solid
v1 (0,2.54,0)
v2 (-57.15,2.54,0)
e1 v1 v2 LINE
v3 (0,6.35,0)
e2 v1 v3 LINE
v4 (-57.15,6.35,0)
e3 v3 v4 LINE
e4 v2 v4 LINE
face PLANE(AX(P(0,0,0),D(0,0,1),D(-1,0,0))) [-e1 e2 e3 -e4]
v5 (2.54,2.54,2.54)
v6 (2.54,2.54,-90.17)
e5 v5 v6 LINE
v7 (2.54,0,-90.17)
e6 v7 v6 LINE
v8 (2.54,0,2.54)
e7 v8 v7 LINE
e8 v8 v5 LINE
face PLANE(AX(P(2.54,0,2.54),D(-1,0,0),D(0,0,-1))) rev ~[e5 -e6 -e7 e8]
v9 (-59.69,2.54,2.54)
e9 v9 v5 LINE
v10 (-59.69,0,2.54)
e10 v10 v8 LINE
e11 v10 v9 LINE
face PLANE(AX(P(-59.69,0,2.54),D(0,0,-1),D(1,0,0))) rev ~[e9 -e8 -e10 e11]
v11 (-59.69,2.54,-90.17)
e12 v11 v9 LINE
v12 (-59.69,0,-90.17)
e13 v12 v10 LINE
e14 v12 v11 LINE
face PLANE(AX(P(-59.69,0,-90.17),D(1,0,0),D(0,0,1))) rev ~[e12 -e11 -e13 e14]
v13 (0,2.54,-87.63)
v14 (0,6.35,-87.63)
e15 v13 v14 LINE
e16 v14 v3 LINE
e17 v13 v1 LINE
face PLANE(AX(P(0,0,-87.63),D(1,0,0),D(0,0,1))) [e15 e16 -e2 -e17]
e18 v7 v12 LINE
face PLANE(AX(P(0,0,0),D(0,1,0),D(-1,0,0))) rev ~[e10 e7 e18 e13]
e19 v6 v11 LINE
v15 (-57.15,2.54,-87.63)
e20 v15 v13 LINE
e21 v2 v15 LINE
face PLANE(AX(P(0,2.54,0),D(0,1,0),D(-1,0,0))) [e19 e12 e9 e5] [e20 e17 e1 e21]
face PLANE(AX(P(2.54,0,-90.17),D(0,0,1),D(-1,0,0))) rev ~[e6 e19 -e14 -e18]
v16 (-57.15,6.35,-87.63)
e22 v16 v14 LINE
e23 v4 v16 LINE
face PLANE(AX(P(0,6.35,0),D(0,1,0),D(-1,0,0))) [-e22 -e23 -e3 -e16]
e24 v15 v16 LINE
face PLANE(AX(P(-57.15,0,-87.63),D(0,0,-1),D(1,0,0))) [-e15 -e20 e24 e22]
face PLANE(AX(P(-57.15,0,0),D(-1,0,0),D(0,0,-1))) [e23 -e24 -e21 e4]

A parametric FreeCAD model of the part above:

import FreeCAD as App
import Part
import Sketcher
from FreeCAD import Vector
Q = App.Units.Quantity

doc = App.newDocument("Part")
body = doc.addObject("PartDesign::Body", "Body")

sketch1 = doc.addObject("Sketcher::SketchObject", "Sketch")
body.addObject(sketch1)
sketch1.AttachmentSupport = (doc.XZ_Plane, [""])
sketch1.MapMode = "FlatFace"
sketch1.addGeometry([
    Part.LineSegment(Vector(-57, 0, 0), Vector(0, 0, 0)),
    Part.LineSegment(Vector(0, 0, 0), Vector(0, -88, 0)),
    Part.LineSegment(Vector(0, -88, 0), Vector(-57, -88, 0)),
    Part.LineSegment(Vector(-57, -88, 0), Vector(-57, 0, 0)),
], False)
sketch1.addConstraint([
    Sketcher.Constraint("Coincident", 0, 2, 1, 1),
    Sketcher.Constraint("Coincident", 1, 2, 2, 1),
    Sketcher.Constraint("Coincident", 2, 2, 3, 1),
    Sketcher.Constraint("Coincident", 3, 2, 0, 1),
    Sketcher.Constraint("Horizontal", 0),
    Sketcher.Constraint("Vertical", 1),
    Sketcher.Constraint("Horizontal", 2),
    Sketcher.Constraint("Vertical", 3),
    Sketcher.Constraint("Coincident", 0, 2, -1, 1),
    Sketcher.Constraint("DistanceX", 0, 1, 0, 2, Q("2.25 in")),
    Sketcher.Constraint("DistanceY", 1, 2, 1, 1, Q("3.45 in")),
])
pad1 = doc.addObject("PartDesign::Pad", "Pad")
body.addObject(pad1)
pad1.Profile = sketch1
pad1.Length = Q("0.25 in")
pad1.Reversed = True

sketch2 = doc.addObject("Sketcher::SketchObject", "Sketch001")
body.addObject(sketch2)
sketch2.AttachmentSupport = (doc.XZ_Plane, [""])
sketch2.MapMode = "FlatFace"
sketch2.addGeometry([
    Part.LineSegment(Vector(3, -90, 0), Vector(-60, -90, 0)),
    Part.LineSegment(Vector(-60, -90, 0), Vector(-60, 3, 0)),
    Part.LineSegment(Vector(-60, 3, 0), Vector(3, 3, 0)),
    Part.LineSegment(Vector(3, 3, 0), Vector(3, -90, 0)),
    Part.LineSegment(Vector(0, -88, 0), Vector(0, 0, 0)),
    Part.LineSegment(Vector(0, 0, 0), Vector(-57, 0, 0)),
    Part.LineSegment(Vector(-57, 0, 0), Vector(-57, -88, 0)),
    Part.LineSegment(Vector(-57, -88, 0), Vector(0, -88, 0)),
], False)
sketch2.addConstraint([
    Sketcher.Constraint("Coincident", 0, 2, 1, 1),
    Sketcher.Constraint("Coincident", 1, 2, 2, 1),
    Sketcher.Constraint("Coincident", 2, 2, 3, 1),
    Sketcher.Constraint("Coincident", 3, 2, 0, 1),
    Sketcher.Constraint("Coincident", 4, 2, 5, 1),
    Sketcher.Constraint("Coincident", 5, 2, 6, 1),
    Sketcher.Constraint("Coincident", 6, 2, 7, 1),
    Sketcher.Constraint("Coincident", 7, 2, 4, 1),
    Sketcher.Constraint("Horizontal", 0),
    Sketcher.Constraint("Vertical", 1),
    Sketcher.Constraint("Horizontal", 2),
    Sketcher.Constraint("Vertical", 3),
    Sketcher.Constraint("Vertical", 4),
    Sketcher.Constraint("Horizontal", 5),
    Sketcher.Constraint("Vertical", 6),
    Sketcher.Constraint("Horizontal", 7),
    Sketcher.Constraint("Coincident", 4, 2, -1, 1),
    Sketcher.Constraint("DistanceX", 5, 2, 5, 1, Q("2.25 in")),
    Sketcher.Constraint("DistanceY", 4, 1, 4, 2, Q("3.45 in")),
    Sketcher.Constraint("DistanceY", -1, 1, 1, 2, Q("0.1 in")),
    Sketcher.Constraint("DistanceX", -1, 1, 2, 2, Q("0.1 in")),
    Sketcher.Constraint("DistanceX", 1, 2, 5, 2, Q("0.1 in")),
    Sketcher.Constraint("DistanceY", 0, 2, 6, 2, Q("0.1 in")),
])
pad2 = doc.addObject("PartDesign::Pad", "Pad001")
body.addObject(pad2)
pad2.Profile = sketch2
pad2.Length = Q("0.1 in")
pad2.Reversed = True

doc.recompute()
